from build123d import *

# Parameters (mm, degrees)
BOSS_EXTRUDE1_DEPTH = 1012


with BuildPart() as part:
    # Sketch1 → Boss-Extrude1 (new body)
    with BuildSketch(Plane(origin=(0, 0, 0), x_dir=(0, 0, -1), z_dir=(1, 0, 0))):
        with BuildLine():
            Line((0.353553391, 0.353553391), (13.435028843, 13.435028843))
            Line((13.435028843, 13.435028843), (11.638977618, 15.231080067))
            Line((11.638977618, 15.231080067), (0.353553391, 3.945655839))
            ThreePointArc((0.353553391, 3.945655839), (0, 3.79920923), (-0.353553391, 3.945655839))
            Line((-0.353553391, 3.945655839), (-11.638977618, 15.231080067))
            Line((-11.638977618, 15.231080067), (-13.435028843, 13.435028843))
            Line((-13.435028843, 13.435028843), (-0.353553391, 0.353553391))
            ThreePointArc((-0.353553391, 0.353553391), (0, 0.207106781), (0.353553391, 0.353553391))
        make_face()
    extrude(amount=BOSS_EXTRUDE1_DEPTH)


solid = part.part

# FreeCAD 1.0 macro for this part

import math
import FreeCAD as App
import Part
import Sketcher

V = App.Vector

doc = App.newDocument("Part")
body = doc.addObject("PartDesign::Body", "Body")

# Sketch on YZ plane
sketch1 = body.newObject("Sketcher::SketchObject", "Sketch")
sketch1.AttachmentSupport = (doc.getObject("YZ_Plane"), [""])
sketch1.MapMode = "FlatFace"
sketch1.addGeometry([
    Part.LineSegment(V(0.4, -0.4, 0), V(13.4, -13.4, 0)),  # 0
    Part.LineSegment(V(13.4, -13.4, 0), V(15.2, -11.6, 0)),  # 1
    Part.LineSegment(V(15.2, -11.6, 0), V(3.9, -0.4, 0)),  # 2
    Part.ArcOfCircle(Part.Circle(V(4.3, 0, 0), V(0, 0, 1), 0.5), math.radians(135), math.radians(225)),  # 3
    Part.LineSegment(V(3.9, 0.4, 0), V(15.2, 11.6, 0)),  # 4
    Part.LineSegment(V(15.2, 11.6, 0), V(13.4, 13.4, 0)),  # 5
    Part.LineSegment(V(13.4, 13.4, 0), V(0.4, 0.4, 0)),  # 6
    Part.ArcOfCircle(Part.Circle(V(0.7, 0, 0), V(0, 0, 1), 0.5), math.radians(135), math.radians(225)),  # 7
], False)
sketch1.addConstraint([
    Sketcher.Constraint("Coincident", 0, 2, 1, 1),
    Sketcher.Constraint("Coincident", 1, 2, 2, 1),
    Sketcher.Constraint("Tangent", 2, 2, 3, 2),
    Sketcher.Constraint("Tangent", 3, 1, 4, 1),
    Sketcher.Constraint("Coincident", 4, 2, 5, 1),
    Sketcher.Constraint("Coincident", 5, 2, 6, 1),
    Sketcher.Constraint("Tangent", 6, 2, 7, 1),
    Sketcher.Constraint("Tangent", 7, 2, 0, 1),
    Sketcher.Constraint("Equal", 3, 7),
    Sketcher.Constraint("Symmetric", 2, 2, 3, 1, -1),
    Sketcher.Constraint("Symmetric", 0, 2, 5, 2, -1),
    Sketcher.Constraint("PointOnObject", 7, 3, -1),
    Sketcher.Constraint("Perpendicular", 0, 1),
    Sketcher.Constraint("Perpendicular", 1, 2),
    Sketcher.Constraint("Perpendicular", 2, 4),
    Sketcher.Constraint("Perpendicular", 4, 5),
    Sketcher.Constraint("Radius", 3, 0.5),
    Sketcher.Constraint("Distance", 0, 18.5),
    Sketcher.Constraint("Distance", 1, 2.54),
    Sketcher.Constraint("DistanceX", -1, 1, 3, 3, 4.299209),
])
pad1 = body.newObject("PartDesign::Pad", "Pad")
pad1.Profile = sketch1
pad1.Length = 1012

doc.recompute()
